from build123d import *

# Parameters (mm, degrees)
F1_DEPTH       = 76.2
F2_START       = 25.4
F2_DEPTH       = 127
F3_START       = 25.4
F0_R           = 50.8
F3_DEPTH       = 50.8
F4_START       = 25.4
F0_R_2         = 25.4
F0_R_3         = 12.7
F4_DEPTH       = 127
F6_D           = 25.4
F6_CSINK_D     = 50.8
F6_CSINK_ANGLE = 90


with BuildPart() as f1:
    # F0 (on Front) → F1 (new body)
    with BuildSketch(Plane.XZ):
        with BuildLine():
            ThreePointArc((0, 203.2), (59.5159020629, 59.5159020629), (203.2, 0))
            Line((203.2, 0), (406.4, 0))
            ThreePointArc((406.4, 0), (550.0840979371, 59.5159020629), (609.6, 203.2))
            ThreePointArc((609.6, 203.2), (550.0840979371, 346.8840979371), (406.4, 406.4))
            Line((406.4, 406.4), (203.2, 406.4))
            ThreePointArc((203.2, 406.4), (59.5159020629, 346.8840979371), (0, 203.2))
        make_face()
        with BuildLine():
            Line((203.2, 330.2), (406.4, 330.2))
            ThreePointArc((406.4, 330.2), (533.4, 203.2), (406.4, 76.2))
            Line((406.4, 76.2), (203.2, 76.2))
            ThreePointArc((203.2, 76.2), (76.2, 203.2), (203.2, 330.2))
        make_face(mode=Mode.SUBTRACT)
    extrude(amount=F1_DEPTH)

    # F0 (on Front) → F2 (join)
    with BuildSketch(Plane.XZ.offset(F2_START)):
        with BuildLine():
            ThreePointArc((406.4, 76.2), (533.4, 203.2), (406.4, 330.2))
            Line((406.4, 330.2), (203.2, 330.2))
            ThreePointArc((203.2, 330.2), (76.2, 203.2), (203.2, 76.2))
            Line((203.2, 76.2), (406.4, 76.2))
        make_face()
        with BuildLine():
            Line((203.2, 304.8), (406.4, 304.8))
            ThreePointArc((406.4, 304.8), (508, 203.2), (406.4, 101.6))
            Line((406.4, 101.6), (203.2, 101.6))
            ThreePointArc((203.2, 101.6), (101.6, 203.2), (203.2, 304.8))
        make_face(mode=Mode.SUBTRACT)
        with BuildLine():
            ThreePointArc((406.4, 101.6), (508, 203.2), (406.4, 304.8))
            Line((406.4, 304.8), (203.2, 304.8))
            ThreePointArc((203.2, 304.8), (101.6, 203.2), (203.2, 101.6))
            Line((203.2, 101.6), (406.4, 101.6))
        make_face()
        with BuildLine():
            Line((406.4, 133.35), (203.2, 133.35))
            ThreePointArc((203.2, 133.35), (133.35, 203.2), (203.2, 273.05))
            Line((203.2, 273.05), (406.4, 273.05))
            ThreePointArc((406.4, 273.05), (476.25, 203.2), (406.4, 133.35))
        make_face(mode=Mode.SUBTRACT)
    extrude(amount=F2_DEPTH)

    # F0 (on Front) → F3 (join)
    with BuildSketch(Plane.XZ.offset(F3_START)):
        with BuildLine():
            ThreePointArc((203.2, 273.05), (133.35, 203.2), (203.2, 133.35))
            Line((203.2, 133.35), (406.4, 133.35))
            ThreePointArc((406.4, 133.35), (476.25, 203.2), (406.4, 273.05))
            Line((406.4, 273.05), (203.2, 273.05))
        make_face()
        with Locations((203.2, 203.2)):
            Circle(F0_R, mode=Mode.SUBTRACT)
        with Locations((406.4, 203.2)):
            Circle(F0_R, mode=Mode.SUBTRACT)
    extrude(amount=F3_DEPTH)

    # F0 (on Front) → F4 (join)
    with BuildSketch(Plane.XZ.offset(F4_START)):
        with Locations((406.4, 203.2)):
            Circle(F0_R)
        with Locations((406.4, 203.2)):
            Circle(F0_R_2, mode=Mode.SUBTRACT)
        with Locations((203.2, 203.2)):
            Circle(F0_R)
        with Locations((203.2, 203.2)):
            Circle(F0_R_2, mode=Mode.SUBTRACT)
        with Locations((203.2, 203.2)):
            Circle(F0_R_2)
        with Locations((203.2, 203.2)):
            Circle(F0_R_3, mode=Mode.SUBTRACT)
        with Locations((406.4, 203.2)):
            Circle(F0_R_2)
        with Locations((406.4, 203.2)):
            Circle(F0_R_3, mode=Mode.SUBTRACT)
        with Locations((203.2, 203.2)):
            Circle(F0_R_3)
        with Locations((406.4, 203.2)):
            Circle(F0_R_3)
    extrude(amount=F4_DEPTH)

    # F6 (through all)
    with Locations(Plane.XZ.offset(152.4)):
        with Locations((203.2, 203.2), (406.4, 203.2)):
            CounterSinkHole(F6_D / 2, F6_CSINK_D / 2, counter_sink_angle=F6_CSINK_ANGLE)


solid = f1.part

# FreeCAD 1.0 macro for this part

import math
import FreeCAD as App
import Part
import Sketcher
Q = App.Units.Quantity

doc = App.newDocument("Part")
body = doc.addObject("PartDesign::Body", "Body")

sketch1 = doc.addObject("Sketcher::SketchObject", "Sketch")
body.addObject(sketch1)
sketch1.AttachmentSupport = (doc.XZ_Plane, [""])
sketch1.MapMode = "FlatFace"
sketch1.addGeometry(Part.LineSegment(App.Vector(203.2, 0, 0), App.Vector(406.4, 0, 0)), False)
sketch1.addGeometry(Part.ArcOfCircle(Part.Circle(App.Vector(406.4, 203.2, 0), App.Vector(0, 0, 1), 203.2), math.radians(-90), math.radians(90)), False)
sketch1.addGeometry(Part.LineSegment(App.Vector(406.4, 406.4, 0), App.Vector(203.2, 406.4, 0)), False)
sketch1.addGeometry(Part.ArcOfCircle(Part.Circle(App.Vector(203.2, 203.2, 0), App.Vector(0, 0, 1), 203.2), math.radians(90), math.radians(270)), False)
sketch1.addGeometry(Part.ArcOfCircle(Part.Circle(App.Vector(203.2, 203.2, 0), App.Vector(0, 0, 1), 127), math.radians(90), math.radians(270)), False)
sketch1.addGeometry(Part.LineSegment(App.Vector(203.2, 330.2, 0), App.Vector(406.4, 330.2, 0)), False)
sketch1.addGeometry(Part.ArcOfCircle(Part.Circle(App.Vector(406.4, 203.2, 0), App.Vector(0, 0, 1), 127), math.radians(-90), math.radians(90)), False)
sketch1.addGeometry(Part.LineSegment(App.Vector(406.4, 76.2, 0), App.Vector(203.2, 76.2, 0)), False)
sketch1.addConstraint(Sketcher.Constraint("Tangent", 0, 2, 1, 1))
sketch1.addConstraint(Sketcher.Constraint("Tangent", 1, 2, 2, 1))
sketch1.addConstraint(Sketcher.Constraint("Tangent", 2, 2, 3, 1))
sketch1.addConstraint(Sketcher.Constraint("Tangent", 3, 2, 0, 1))
sketch1.addConstraint(Sketcher.Constraint("Tangent", 4, 1, 5, 1))
sketch1.addConstraint(Sketcher.Constraint("Tangent", 5, 2, 6, 2))
sketch1.addConstraint(Sketcher.Constraint("Tangent", 6, 1, 7, 1))
sketch1.addConstraint(Sketcher.Constraint("Tangent", 7, 2, 4, 2))
sketch1.addConstraint(Sketcher.Constraint("Horizontal", 0))
sketch1.addConstraint(Sketcher.Constraint("Horizontal", 2))
sketch1.addConstraint(Sketcher.Constraint("Horizontal", 5))
sketch1.addConstraint(Sketcher.Constraint("Horizontal", 7))
sketch1.addConstraint(Sketcher.Constraint("Coincident", 4, 3, 3, 3))
sketch1.addConstraint(Sketcher.Constraint("PointOnObject", 0, 2, -1))
sketch1.addConstraint(Sketcher.Constraint("Vertical", 6, 3, 0, 2))
sketch1.addConstraint(Sketcher.Constraint("Radius", 1, Q("8 in")))
sketch1.addConstraint(Sketcher.Constraint("Radius", 4, Q("5 in")))
sketch1.addConstraint(Sketcher.Constraint("DistanceX", 0, 1, 0, 2, Q("8 in")))
sketch1.addConstraint(Sketcher.Constraint("DistanceX", -1, 1, 1, 3, Q("16 in")))
pad1 = doc.addObject("PartDesign::Pad", "Pad")
body.addObject(pad1)
pad1.Profile = sketch1
pad1.Length = Q("3 in")

sketch2 = doc.addObject("Sketcher::SketchObject", "Sketch001")
body.addObject(sketch2)
sketch2.AttachmentSupport = (doc.XZ_Plane, [""])
sketch2.MapMode = "FlatFace"
sketch2.AttachmentOffset = App.Placement(App.Vector(0, 0, 1 * 25.4), App.Rotation())
sketch2.addGeometry(Part.ArcOfCircle(Part.Circle(App.Vector(406.4, 203.2, 0), App.Vector(0, 0, 1), 127), math.radians(-90), math.radians(90)), False)
sketch2.addGeometry(Part.LineSegment(App.Vector(406.4, 330.2, 0), App.Vector(203.2, 330.2, 0)), False)
sketch2.addGeometry(Part.ArcOfCircle(Part.Circle(App.Vector(203.2, 203.2, 0), App.Vector(0, 0, 1), 127), math.radians(90), math.radians(270)), False)
sketch2.addGeometry(Part.LineSegment(App.Vector(203.2, 76.2, 0), App.Vector(406.4, 76.2, 0)), False)
sketch2.addGeometry(Part.ArcOfCircle(Part.Circle(App.Vector(406.4, 203.2, 0), App.Vector(0, 0, 1), 69.85), math.radians(-90), math.radians(90)), False)
sketch2.addGeometry(Part.LineSegment(App.Vector(406.4, 133.35, 0), App.Vector(203.2, 133.35, 0)), False)
sketch2.addGeometry(Part.ArcOfCircle(Part.Circle(App.Vector(203.2, 203.2, 0), App.Vector(0, 0, 1), 69.85), math.radians(90), math.radians(270)), False)
sketch2.addGeometry(Part.LineSegment(App.Vector(203.2, 273.05, 0), App.Vector(406.4, 273.05, 0)), False)
sketch2.addConstraint(Sketcher.Constraint("Tangent", 0, 2, 1, 1))
sketch2.addConstraint(Sketcher.Constraint("Tangent", 1, 2, 2, 1))
sketch2.addConstraint(Sketcher.Constraint("Tangent", 2, 2, 3, 1))
sketch2.addConstraint(Sketcher.Constraint("Tangent", 3, 2, 0, 1))
sketch2.addConstraint(Sketcher.Constraint("Tangent", 4, 1, 5, 1))
sketch2.addConstraint(Sketcher.Constraint("Tangent", 5, 2, 6, 2))
sketch2.addConstraint(Sketcher.Constraint("Tangent", 6, 1, 7, 1))
sketch2.addConstraint(Sketcher.Constraint("Tangent", 7, 2, 4, 2))
sketch2.addConstraint(Sketcher.Constraint("Horizontal", 1))
sketch2.addConstraint(Sketcher.Constraint("Horizontal", 3))
sketch2.addConstraint(Sketcher.Constraint("Horizontal", 5))
sketch2.addConstraint(Sketcher.Constraint("Horizontal", 7))
sketch2.addConstraint(Sketcher.Constraint("Coincident", 4, 3, 0, 3))
sketch2.addConstraint(Sketcher.Constraint("Vertical", 6, 3, 1, 2))
sketch2.addConstraint(Sketcher.Constraint("Radius", 0, Q("5 in")))
sketch2.addConstraint(Sketcher.Constraint("DistanceX", 1, 2, 1, 1, Q("8 in")))
sketch2.addConstraint(Sketcher.Constraint("Radius", 4, Q("2.75 in")))
sketch2.addConstraint(Sketcher.Constraint("DistanceX", -1, 1, 0, 3, Q("16 in")))
sketch2.addConstraint(Sketcher.Constraint("DistanceY", -1, 1, 0, 3, Q("8 in")))
pad2 = doc.addObject("PartDesign::Pad", "Pad001")
body.addObject(pad2)
pad2.Profile = sketch2
pad2.Length = Q("5 in")

sketch3 = doc.addObject("Sketcher::SketchObject", "Sketch002")
body.addObject(sketch3)
sketch3.AttachmentSupport = (doc.XZ_Plane, [""])
sketch3.MapMode = "FlatFace"
sketch3.AttachmentOffset = App.Placement(App.Vector(0, 0, 1 * 25.4), App.Rotation())
sketch3.addGeometry(Part.ArcOfCircle(Part.Circle(App.Vector(203.2, 203.2, 0), App.Vector(0, 0, 1), 69.85), math.radians(90), math.radians(270)), False)
sketch3.addGeometry(Part.LineSegment(App.Vector(203.2, 133.35, 0), App.Vector(406.4, 133.35, 0)), False)
sketch3.addGeometry(Part.ArcOfCircle(Part.Circle(App.Vector(406.4, 203.2, 0), App.Vector(0, 0, 1), 69.85), math.radians(-90), math.radians(90)), False)
sketch3.addGeometry(Part.LineSegment(App.Vector(406.4, 273.05, 0), App.Vector(203.2, 273.05, 0)), False)
sketch3.addGeometry(Part.Circle(App.Vector(203.2, 203.2, 0), App.Vector(0, 0, 1), 50.8), False)
sketch3.addGeometry(Part.Circle(App.Vector(406.4, 203.2, 0), App.Vector(0, 0, 1), 50.8), False)
sketch3.addConstraint(Sketcher.Constraint("Tangent", 0, 2, 1, 1))
sketch3.addConstraint(Sketcher.Constraint("Tangent", 1, 2, 2, 1))
sketch3.addConstraint(Sketcher.Constraint("Tangent", 2, 2, 3, 1))
sketch3.addConstraint(Sketcher.Constraint("Tangent", 3, 2, 0, 1))
sketch3.addConstraint(Sketcher.Constraint("Horizontal", 1))
sketch3.addConstraint(Sketcher.Constraint("Horizontal", 3))
sketch3.addConstraint(Sketcher.Constraint("Coincident", 4, 3, 0, 3))
sketch3.addConstraint(Sketcher.Constraint("Coincident", 5, 3, 2, 3))
sketch3.addConstraint(Sketcher.Constraint("Equal", 4, 5))
sketch3.addConstraint(Sketcher.Constraint("Diameter", 4, Q("4 in")))
sketch3.addConstraint(Sketcher.Constraint("DistanceX", 1, 1, 1, 2, Q("8 in")))
sketch3.addConstraint(Sketcher.Constraint("Radius", 0, Q("2.75 in")))
sketch3.addConstraint(Sketcher.Constraint("DistanceX", -1, 1, 0, 3, Q("8 in")))
sketch3.addConstraint(Sketcher.Constraint("DistanceY", -1, 1, 0, 3, Q("8 in")))
pad3 = doc.addObject("PartDesign::Pad", "Pad002")
body.addObject(pad3)
pad3.Profile = sketch3
pad3.Length = Q("2 in")

sketch4 = doc.addObject("Sketcher::SketchObject", "Sketch003")
body.addObject(sketch4)
sketch4.AttachmentSupport = (doc.XZ_Plane, [""])
sketch4.MapMode = "FlatFace"
sketch4.AttachmentOffset = App.Placement(App.Vector(0, 0, 1 * 25.4), App.Rotation())
sketch4.addGeometry(Part.Circle(App.Vector(406.4, 203.2, 0), App.Vector(0, 0, 1), 50.8), False)
sketch4.addGeometry(Part.Circle(App.Vector(203.2, 203.2, 0), App.Vector(0, 0, 1), 50.8), False)
sketch4.addConstraint(Sketcher.Constraint("Equal", 0, 1))
sketch4.addConstraint(Sketcher.Constraint("Horizontal", 0, 3, 1, 3))
sketch4.addConstraint(Sketcher.Constraint("Diameter", 0, Q("4 in")))
sketch4.addConstraint(Sketcher.Constraint("DistanceX", -1, 1, 0, 3, Q("16 in")))
sketch4.addConstraint(Sketcher.Constraint("DistanceY", -1, 1, 0, 3, Q("8 in")))
sketch4.addConstraint(Sketcher.Constraint("DistanceX", -1, 1, 1, 3, Q("8 in")))
pad4 = doc.addObject("PartDesign::Pad", "Pad003")
body.addObject(pad4)
pad4.Profile = sketch4
pad4.Length = Q("5 in")

sketch5 = doc.addObject("Sketcher::SketchObject", "Sketch004")
body.addObject(sketch5)
sketch5.AttachmentSupport = (doc.XZ_Plane, [""])
sketch5.MapMode = "FlatFace"
sketch5.AttachmentOffset = App.Placement(App.Vector(0, 0, 6 * 25.4), App.Rotation())
sketch5.addGeometry(Part.Circle(App.Vector(203.2, 203.2, 0), App.Vector(0, 0, 1), 12.7), False)
sketch5.addGeometry(Part.Circle(App.Vector(406.4, 203.2, 0), App.Vector(0, 0, 1), 12.7), False)
sketch5.addConstraint(Sketcher.Constraint("Equal", 0, 1))
sketch5.addConstraint(Sketcher.Constraint("Horizontal", 0, 3, 1, 3))
sketch5.addConstraint(Sketcher.Constraint("Diameter", 0, Q("1 in")))
sketch5.addConstraint(Sketcher.Constraint("DistanceX", -1, 1, 0, 3, Q("8 in")))
sketch5.addConstraint(Sketcher.Constraint("DistanceY", -1, 1, 0, 3, Q("8 in")))
sketch5.addConstraint(Sketcher.Constraint("DistanceX", -1, 1, 1, 3, Q("16 in")))
doc.recompute()
hole = doc.addObject("PartDesign::Hole", "Hole")
body.addObject(hole)
hole.Profile = sketch5
hole.ThreadType = "None"
hole.Diameter = Q("1 in")
hole.DepthType = "ThroughAll"
hole.HoleCutType = "Countersink"
hole.HoleCutDiameter = Q("2 in")
hole.HoleCutCountersinkAngle = 90

doc.recompute()
